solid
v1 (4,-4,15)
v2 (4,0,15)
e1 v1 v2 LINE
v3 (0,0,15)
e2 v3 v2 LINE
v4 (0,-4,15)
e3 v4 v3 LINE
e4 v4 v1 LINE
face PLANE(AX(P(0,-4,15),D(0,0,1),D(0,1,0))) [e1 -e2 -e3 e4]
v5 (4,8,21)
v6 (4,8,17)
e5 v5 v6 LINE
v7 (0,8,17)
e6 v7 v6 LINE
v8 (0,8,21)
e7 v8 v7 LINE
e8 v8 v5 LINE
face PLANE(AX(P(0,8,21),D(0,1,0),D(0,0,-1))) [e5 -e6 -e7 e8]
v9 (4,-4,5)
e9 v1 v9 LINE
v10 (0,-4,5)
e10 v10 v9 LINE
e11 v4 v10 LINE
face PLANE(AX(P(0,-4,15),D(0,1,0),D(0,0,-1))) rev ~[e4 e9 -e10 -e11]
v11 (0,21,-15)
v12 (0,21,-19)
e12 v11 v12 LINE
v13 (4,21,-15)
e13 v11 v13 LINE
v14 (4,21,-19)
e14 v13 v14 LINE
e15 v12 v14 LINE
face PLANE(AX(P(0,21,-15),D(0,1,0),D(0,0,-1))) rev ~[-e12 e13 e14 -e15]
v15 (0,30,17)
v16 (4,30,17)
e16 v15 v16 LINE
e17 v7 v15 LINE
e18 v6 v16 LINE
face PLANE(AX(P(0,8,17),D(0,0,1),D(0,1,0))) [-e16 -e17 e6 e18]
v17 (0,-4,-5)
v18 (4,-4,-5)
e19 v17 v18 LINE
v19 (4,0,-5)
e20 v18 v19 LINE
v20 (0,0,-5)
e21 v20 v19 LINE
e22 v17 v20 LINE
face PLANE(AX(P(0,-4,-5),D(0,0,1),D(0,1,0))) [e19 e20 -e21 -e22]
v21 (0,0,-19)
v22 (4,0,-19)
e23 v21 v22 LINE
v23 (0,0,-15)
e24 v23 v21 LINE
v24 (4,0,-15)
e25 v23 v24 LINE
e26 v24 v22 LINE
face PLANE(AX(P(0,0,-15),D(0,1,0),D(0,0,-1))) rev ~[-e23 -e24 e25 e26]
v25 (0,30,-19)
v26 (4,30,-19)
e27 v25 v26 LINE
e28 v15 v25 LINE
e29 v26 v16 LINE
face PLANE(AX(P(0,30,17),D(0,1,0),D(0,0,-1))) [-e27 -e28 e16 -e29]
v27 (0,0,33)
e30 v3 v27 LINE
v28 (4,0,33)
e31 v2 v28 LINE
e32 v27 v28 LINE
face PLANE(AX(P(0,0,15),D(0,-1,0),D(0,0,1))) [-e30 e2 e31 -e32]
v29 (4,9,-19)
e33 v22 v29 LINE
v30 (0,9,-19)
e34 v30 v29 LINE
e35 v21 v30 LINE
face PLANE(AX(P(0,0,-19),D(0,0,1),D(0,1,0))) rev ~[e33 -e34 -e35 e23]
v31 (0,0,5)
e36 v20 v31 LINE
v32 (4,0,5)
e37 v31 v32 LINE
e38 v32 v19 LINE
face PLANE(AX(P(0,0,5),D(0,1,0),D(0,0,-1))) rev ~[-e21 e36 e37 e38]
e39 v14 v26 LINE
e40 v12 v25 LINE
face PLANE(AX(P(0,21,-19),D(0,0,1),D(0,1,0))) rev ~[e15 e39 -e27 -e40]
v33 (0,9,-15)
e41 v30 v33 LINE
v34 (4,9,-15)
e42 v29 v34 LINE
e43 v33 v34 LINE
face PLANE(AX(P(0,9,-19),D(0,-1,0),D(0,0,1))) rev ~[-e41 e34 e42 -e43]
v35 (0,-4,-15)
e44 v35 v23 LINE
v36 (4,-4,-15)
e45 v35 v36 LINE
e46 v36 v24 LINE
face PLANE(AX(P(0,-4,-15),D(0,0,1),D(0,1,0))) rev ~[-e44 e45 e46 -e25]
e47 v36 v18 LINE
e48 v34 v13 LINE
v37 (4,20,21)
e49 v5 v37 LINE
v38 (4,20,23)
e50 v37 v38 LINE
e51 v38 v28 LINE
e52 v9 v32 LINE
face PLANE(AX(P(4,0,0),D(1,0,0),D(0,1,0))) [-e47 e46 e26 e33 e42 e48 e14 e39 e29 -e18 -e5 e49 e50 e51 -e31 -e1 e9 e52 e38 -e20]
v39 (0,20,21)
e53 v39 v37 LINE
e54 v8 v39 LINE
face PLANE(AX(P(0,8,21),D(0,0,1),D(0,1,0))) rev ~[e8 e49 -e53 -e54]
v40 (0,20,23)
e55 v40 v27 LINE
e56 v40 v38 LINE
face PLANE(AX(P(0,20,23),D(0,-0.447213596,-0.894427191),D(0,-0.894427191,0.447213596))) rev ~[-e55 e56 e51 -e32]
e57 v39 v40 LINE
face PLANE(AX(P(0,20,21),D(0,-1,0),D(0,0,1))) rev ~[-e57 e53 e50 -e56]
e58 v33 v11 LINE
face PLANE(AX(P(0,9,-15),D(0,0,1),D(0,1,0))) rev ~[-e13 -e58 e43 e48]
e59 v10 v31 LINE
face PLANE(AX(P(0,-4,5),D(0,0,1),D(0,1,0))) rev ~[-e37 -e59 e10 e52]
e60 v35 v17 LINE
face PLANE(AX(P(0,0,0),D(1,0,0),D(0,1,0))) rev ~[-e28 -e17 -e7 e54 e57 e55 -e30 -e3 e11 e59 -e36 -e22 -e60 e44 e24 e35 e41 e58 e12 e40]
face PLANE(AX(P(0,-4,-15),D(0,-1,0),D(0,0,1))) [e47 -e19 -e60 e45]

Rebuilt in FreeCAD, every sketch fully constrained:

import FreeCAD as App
import Part
import Sketcher
Q = App.Units.Quantity


def add_polygon(sketch, points):
    """Adds a closed chain of lines whose ends are joined by coincident constraints."""
    first, n = sketch.GeometryCount, len(points)
    for a, b in zip(points, points[1:] + points[:1]):
        sketch.addGeometry(Part.LineSegment(App.Vector(*a, 0), App.Vector(*b, 0)), False)
    for i in range(n):
        sketch.addConstraint(Sketcher.Constraint("Coincident", first + i, 2, first + (i + 1) % n, 1))

doc = App.newDocument("Part")
body = doc.addObject("PartDesign::Body", "Body")

# Sketch on YZ plane
sketch1 = doc.addObject("Sketcher::SketchObject", "Sketch")
body.addObject(sketch1)
sketch1.AttachmentSupport = (doc.YZ_Plane, [""])
sketch1.MapMode = "FlatFace"
add_polygon(sketch1, [(0, 15), (-4, 15), (-4, 5), (0, 5), (0, -5), (-4, -5), (-4, -15), (0, -15), (0, -19), (9, -19), (9, -15), (21, -15), (21, -19), (30, -19), (30, 17), (8, 17), (8, 21), (20, 21), (20, 23), (0, 33)])  # lines 0-19
sketch1.addConstraint(Sketcher.Constraint("Horizontal", 0))
sketch1.addConstraint(Sketcher.Constraint("Vertical", 1))
sketch1.addConstraint(Sketcher.Constraint("Horizontal", 2))
sketch1.addConstraint(Sketcher.Constraint("Vertical", 3))
sketch1.addConstraint(Sketcher.Constraint("Horizontal", 4))
sketch1.addConstraint(Sketcher.Constraint("Vertical", 5))
sketch1.addConstraint(Sketcher.Constraint("Horizontal", 6))
sketch1.addConstraint(Sketcher.Constraint("Vertical", 7))
sketch1.addConstraint(Sketcher.Constraint("Horizontal", 8))
sketch1.addConstraint(Sketcher.Constraint("Vertical", 9))
sketch1.addConstraint(Sketcher.Constraint("Horizontal", 10))
sketch1.addConstraint(Sketcher.Constraint("Vertical", 11))
sketch1.addConstraint(Sketcher.Constraint("Horizontal", 12))
sketch1.addConstraint(Sketcher.Constraint("Vertical", 13))
sketch1.addConstraint(Sketcher.Constraint("Horizontal", 14))
sketch1.addConstraint(Sketcher.Constraint("Vertical", 15))
sketch1.addConstraint(Sketcher.Constraint("Horizontal", 16))
sketch1.addConstraint(Sketcher.Constraint("Vertical", 17))
sketch1.addConstraint(Sketcher.Constraint("Vertical", 19))
sketch1.addConstraint(Sketcher.Constraint("Symmetric", 2, 2, 3, 2, -1, 1))
sketch1.addConstraint(Sketcher.Constraint("Symmetric", 6, 2, 19, 2, -1, 1))
sketch1.addConstraint(Sketcher.Constraint("PointOnObject", 6, 2, -2))
sketch1.addConstraint(Sketcher.Constraint("Horizontal", 6, 2, 9, 2))
sketch1.addConstraint(Sketcher.Constraint("Horizontal", 8, 2, 11, 2))
sketch1.addConstraint(Sketcher.Constraint("Vertical", 1, 2, 4, 2))
sketch1.addConstraint(Sketcher.Constraint("Equal", 8, 12))
sketch1.addConstraint(Sketcher.Constraint("Equal", 10, 16))
sketch1.addConstraint(Sketcher.Constraint("Equal", 1, 3))
sketch1.addConstraint(Sketcher.Constraint("Equal", 6, 7))
sketch1.addConstraint(Sketcher.Constraint("Equal", 11, 15))
sketch1.addConstraint(Sketcher.Constraint("DistanceX", 0, 2, 0, 1, Q("4 mm")))
sketch1.addConstraint(Sketcher.Constraint("DistanceX", 10, 1, 10, 2, Q("12 mm")))
sketch1.addConstraint(Sketcher.Constraint("DistanceY", 1, 2, 1, 1, Q("10 mm")))
sketch1.addConstraint(Sketcher.Constraint("DistanceY", 17, 1, 17, 2, Q("2 mm")))
sketch1.addConstraint(Sketcher.Constraint("DistanceY", 19, 2, 19, 1, Q("18 mm")))
sketch1.addConstraint(Sketcher.Constraint("DistanceX", -1, 1, 12, 2, Q("30 mm")))
sketch1.addConstraint(Sketcher.Constraint("DistanceX", -1, 1, 14, 2, Q("8 mm")))
sketch1.addConstraint(Sketcher.Constraint("DistanceY", 2, 2, 13, 2, Q("12 mm")))
pad1 = doc.addObject("PartDesign::Pad", "Pad")
body.addObject(pad1)
pad1.Profile = sketch1
pad1.Length = 4

doc.recompute()
